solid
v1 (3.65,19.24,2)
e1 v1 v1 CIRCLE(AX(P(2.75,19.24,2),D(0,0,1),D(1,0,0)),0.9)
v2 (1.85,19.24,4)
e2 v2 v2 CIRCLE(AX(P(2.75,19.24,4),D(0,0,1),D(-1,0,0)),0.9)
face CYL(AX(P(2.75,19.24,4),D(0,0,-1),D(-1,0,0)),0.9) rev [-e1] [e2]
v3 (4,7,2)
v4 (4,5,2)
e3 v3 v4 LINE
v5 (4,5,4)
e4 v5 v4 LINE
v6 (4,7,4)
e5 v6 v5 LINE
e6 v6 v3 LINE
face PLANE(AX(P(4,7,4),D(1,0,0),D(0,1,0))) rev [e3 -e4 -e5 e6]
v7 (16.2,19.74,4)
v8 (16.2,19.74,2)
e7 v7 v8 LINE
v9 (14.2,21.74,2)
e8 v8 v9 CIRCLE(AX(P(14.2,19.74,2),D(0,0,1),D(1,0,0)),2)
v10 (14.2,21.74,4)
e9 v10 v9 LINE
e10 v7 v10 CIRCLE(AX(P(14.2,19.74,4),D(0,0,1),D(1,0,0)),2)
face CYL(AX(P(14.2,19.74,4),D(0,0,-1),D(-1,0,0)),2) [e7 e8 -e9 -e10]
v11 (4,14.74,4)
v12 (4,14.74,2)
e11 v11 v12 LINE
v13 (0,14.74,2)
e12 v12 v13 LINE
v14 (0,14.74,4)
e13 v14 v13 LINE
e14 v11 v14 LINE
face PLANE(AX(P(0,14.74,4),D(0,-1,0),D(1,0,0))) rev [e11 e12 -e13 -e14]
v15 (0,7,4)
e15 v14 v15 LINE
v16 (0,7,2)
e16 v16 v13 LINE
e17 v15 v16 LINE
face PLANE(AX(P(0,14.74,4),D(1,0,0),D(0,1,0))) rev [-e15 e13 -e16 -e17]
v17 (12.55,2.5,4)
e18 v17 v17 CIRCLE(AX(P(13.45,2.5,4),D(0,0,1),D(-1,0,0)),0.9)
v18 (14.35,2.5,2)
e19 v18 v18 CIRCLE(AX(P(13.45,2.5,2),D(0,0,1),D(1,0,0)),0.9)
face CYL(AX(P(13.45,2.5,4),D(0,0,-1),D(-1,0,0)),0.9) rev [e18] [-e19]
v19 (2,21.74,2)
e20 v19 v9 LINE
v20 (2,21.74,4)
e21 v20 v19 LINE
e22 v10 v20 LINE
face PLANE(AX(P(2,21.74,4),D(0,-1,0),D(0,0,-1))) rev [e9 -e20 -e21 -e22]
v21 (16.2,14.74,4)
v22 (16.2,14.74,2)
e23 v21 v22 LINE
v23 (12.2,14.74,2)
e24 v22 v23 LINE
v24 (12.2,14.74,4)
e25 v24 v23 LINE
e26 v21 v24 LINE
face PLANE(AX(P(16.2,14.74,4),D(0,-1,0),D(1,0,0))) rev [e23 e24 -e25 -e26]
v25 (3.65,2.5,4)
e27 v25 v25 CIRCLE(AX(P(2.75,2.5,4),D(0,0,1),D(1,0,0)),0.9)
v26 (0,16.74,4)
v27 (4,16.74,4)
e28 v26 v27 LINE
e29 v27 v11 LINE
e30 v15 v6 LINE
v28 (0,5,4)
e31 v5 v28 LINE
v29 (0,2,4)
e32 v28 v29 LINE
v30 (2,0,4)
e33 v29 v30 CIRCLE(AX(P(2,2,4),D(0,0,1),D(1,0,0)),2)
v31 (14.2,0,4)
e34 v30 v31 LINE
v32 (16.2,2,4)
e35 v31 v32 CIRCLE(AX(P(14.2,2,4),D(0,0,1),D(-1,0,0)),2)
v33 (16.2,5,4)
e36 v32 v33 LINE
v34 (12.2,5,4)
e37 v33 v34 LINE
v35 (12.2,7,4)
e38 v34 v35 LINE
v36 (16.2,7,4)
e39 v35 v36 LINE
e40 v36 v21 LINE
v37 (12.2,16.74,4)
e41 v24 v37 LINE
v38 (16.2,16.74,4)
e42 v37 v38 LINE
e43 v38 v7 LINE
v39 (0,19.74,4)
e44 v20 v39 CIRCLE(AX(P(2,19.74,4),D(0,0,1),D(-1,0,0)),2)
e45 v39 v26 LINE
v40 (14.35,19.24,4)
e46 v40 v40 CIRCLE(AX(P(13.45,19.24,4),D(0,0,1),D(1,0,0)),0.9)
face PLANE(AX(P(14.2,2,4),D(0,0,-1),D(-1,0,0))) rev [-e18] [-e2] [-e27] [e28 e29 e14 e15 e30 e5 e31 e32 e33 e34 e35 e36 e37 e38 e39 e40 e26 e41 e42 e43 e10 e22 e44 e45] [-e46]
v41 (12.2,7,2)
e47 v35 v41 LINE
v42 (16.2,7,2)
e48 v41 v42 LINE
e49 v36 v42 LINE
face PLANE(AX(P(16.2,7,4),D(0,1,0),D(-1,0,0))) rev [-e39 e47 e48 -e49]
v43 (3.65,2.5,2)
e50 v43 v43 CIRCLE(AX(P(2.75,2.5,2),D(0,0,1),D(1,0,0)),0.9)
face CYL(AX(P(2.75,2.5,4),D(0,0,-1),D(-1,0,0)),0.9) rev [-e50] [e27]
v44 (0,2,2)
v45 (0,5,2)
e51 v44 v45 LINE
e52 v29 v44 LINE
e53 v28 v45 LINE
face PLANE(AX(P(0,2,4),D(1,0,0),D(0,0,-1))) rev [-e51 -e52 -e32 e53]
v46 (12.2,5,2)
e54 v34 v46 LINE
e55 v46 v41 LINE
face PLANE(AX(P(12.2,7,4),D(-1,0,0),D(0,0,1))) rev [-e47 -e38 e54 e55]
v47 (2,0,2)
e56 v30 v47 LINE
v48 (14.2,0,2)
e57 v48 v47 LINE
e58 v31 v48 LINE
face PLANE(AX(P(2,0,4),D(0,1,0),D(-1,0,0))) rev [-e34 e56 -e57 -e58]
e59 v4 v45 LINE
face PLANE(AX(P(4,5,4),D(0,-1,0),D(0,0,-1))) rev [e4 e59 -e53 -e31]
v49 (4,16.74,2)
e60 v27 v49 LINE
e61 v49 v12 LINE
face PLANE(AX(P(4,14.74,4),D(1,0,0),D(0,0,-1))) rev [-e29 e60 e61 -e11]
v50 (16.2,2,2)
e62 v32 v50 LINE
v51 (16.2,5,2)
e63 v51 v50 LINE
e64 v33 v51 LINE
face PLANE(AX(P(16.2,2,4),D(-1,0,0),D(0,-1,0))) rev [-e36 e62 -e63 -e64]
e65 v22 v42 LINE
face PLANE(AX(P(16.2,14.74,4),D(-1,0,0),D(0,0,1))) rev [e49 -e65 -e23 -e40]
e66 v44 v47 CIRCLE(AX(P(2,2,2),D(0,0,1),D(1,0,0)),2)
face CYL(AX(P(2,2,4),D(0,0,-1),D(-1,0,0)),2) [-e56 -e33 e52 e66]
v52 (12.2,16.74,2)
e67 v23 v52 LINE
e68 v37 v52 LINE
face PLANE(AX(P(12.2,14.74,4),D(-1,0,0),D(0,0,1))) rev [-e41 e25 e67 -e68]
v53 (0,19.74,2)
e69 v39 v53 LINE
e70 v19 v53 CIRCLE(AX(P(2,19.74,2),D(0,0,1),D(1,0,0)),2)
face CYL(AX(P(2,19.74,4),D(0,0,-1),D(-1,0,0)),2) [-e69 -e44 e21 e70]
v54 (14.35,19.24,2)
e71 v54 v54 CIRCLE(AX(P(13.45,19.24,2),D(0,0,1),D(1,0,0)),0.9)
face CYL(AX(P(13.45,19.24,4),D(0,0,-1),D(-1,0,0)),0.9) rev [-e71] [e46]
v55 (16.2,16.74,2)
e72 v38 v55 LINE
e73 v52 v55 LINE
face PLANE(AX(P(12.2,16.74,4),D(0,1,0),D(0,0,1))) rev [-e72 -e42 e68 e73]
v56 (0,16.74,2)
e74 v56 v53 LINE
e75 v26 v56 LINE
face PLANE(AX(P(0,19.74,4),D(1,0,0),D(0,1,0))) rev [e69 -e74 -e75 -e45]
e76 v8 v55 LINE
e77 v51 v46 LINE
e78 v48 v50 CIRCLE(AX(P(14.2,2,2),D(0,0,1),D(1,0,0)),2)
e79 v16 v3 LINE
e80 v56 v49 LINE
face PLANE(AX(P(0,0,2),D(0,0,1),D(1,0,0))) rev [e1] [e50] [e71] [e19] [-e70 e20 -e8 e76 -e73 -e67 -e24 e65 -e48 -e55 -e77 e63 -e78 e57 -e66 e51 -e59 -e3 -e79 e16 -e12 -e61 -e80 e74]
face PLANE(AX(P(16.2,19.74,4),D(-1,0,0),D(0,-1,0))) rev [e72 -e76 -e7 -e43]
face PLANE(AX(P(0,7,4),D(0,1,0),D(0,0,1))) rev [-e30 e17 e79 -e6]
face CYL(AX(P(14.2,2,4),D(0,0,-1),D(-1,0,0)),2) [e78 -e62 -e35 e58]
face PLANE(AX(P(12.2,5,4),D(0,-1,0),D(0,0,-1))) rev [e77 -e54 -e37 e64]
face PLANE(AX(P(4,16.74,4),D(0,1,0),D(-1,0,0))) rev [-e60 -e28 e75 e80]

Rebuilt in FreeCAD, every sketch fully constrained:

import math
import FreeCAD as App
import Part
import Sketcher
from FreeCAD import Vector

doc = App.newDocument("Part")
body = doc.addObject("PartDesign::Body", "Body")

sketch1 = body.newObject("Sketcher::SketchObject", "Sketch")
sketch1.AttachmentSupport = (doc.getObject("XY_Plane"), [""])
sketch1.MapMode = "FlatFace"
sketch1.addGeometry(Part.LineSegment(Vector(0, 14.7, 0), Vector(0, 7, 0)), False)
sketch1.addGeometry(Part.LineSegment(Vector(0, 7, 0), Vector(4, 7, 0)), False)
sketch1.addGeometry(Part.LineSegment(Vector(4, 7, 0), Vector(4, 5, 0)), False)
sketch1.addGeometry(Part.LineSegment(Vector(4, 5, 0), Vector(0, 5, 0)), False)
sketch1.addGeometry(Part.LineSegment(Vector(0, 5, 0), Vector(0, 2, 0)), False)
sketch1.addGeometry(Part.ArcOfCircle(Part.Circle(Vector(2, 2, 0), Vector(0, 0, 1), 2), math.radians(-180), math.radians(-90)), False)
sketch1.addGeometry(Part.LineSegment(Vector(2, 0, 0), Vector(14.2, 0, 0)), False)
sketch1.addGeometry(Part.ArcOfCircle(Part.Circle(Vector(14.2, 2, 0), Vector(0, 0, 1), 2), math.radians(-90), math.radians(0)), False)
sketch1.addGeometry(Part.LineSegment(Vector(16.2, 2, 0), Vector(16.2, 5, 0)), False)
sketch1.addGeometry(Part.LineSegment(Vector(16.2, 5, 0), Vector(12.2, 5, 0)), False)
sketch1.addGeometry(Part.LineSegment(Vector(12.2, 5, 0), Vector(12.2, 7, 0)), False)
sketch1.addGeometry(Part.LineSegment(Vector(12.2, 7, 0), Vector(16.2, 7, 0)), False)
sketch1.addGeometry(Part.LineSegment(Vector(16.2, 7, 0), Vector(16.2, 14.7, 0)), False)
sketch1.addGeometry(Part.LineSegment(Vector(16.2, 14.7, 0), Vector(12.2, 14.7, 0)), False)
sketch1.addGeometry(Part.LineSegment(Vector(12.2, 14.7, 0), Vector(12.2, 16.7, 0)), False)
sketch1.addGeometry(Part.LineSegment(Vector(12.2, 16.7, 0), Vector(16.2, 16.7, 0)), False)
sketch1.addGeometry(Part.LineSegment(Vector(16.2, 16.7, 0), Vector(16.2, 19.7, 0)), False)
sketch1.addGeometry(Part.ArcOfCircle(Part.Circle(Vector(14.2, 19.7, 0), Vector(0, 0, 1), 2), math.radians(0), math.radians(90)), False)
sketch1.addGeometry(Part.LineSegment(Vector(14.2, 21.7, 0), Vector(2, 21.7, 0)), False)
sketch1.addGeometry(Part.ArcOfCircle(Part.Circle(Vector(2, 19.7, 0), Vector(0, 0, 1), 2), math.radians(90), math.radians(180)), False)
sketch1.addGeometry(Part.LineSegment(Vector(0, 19.7, 0), Vector(0, 16.7, 0)), False)
sketch1.addGeometry(Part.LineSegment(Vector(0, 16.7, 0), Vector(4, 16.7, 0)), False)
sketch1.addGeometry(Part.LineSegment(Vector(4, 16.7, 0), Vector(4, 14.7, 0)), False)
sketch1.addGeometry(Part.LineSegment(Vector(4, 14.7, 0), Vector(0, 14.7, 0)), False)
sketch1.addGeometry(Part.Circle(Vector(2.8, 2.5, 0), Vector(0, 0, 1), 0.9), False)
sketch1.addGeometry(Part.Circle(Vector(13.4, 2.5, 0), Vector(0, 0, 1), 0.9), False)
sketch1.addGeometry(Part.Circle(Vector(2.8, 19.2, 0), Vector(0, 0, 1), 0.9), False)
sketch1.addGeometry(Part.Circle(Vector(13.4, 19.2, 0), Vector(0, 0, 1), 0.9), False)
sketch1.addConstraint(Sketcher.Constraint("Coincident", 0, 2, 1, 1))
sketch1.addConstraint(Sketcher.Constraint("Coincident", 1, 2, 2, 1))
sketch1.addConstraint(Sketcher.Constraint("Coincident", 2, 2, 3, 1))
sketch1.addConstraint(Sketcher.Constraint("Coincident", 3, 2, 4, 1))
sketch1.addConstraint(Sketcher.Constraint("Tangent", 4, 2, 5, 1))
sketch1.addConstraint(Sketcher.Constraint("Tangent", 5, 2, 6, 1))
sketch1.addConstraint(Sketcher.Constraint("Tangent", 6, 2, 7, 1))
sketch1.addConstraint(Sketcher.Constraint("Tangent", 7, 2, 8, 1))
sketch1.addConstraint(Sketcher.Constraint("Coincident", 8, 2, 9, 1))
sketch1.addConstraint(Sketcher.Constraint("Coincident", 9, 2, 10, 1))
sketch1.addConstraint(Sketcher.Constraint("Coincident", 10, 2, 11, 1))
sketch1.addConstraint(Sketcher.Constraint("Coincident", 11, 2, 12, 1))
sketch1.addConstraint(Sketcher.Constraint("Coincident", 12, 2, 13, 1))
sketch1.addConstraint(Sketcher.Constraint("Coincident", 13, 2, 14, 1))
sketch1.addConstraint(Sketcher.Constraint("Coincident", 14, 2, 15, 1))
sketch1.addConstraint(Sketcher.Constraint("Coincident", 15, 2, 16, 1))
sketch1.addConstraint(Sketcher.Constraint("Tangent", 16, 2, 17, 1))
sketch1.addConstraint(Sketcher.Constraint("Tangent", 17, 2, 18, 1))
sketch1.addConstraint(Sketcher.Constraint("Tangent", 18, 2, 19, 1))
sketch1.addConstraint(Sketcher.Constraint("Tangent", 19, 2, 20, 1))
sketch1.addConstraint(Sketcher.Constraint("Coincident", 20, 2, 21, 1))
sketch1.addConstraint(Sketcher.Constraint("Coincident", 21, 2, 22, 1))
sketch1.addConstraint(Sketcher.Constraint("Coincident", 22, 2, 23, 1))
sketch1.addConstraint(Sketcher.Constraint("Coincident", 23, 2, 0, 1))
sketch1.addConstraint(Sketcher.Constraint("Vertical", 0))
sketch1.addConstraint(Sketcher.Constraint("Horizontal", 1))
sketch1.addConstraint(Sketcher.Constraint("Vertical", 2))
sketch1.addConstraint(Sketcher.Constraint("Horizontal", 3))
sketch1.addConstraint(Sketcher.Constraint("Vertical", 4))
sketch1.addConstraint(Sketcher.Constraint("Horizontal", 6))
sketch1.addConstraint(Sketcher.Constraint("Vertical", 8))
sketch1.addConstraint(Sketcher.Constraint("Horizontal", 9))
sketch1.addConstraint(Sketcher.Constraint("Vertical", 10))
sketch1.addConstraint(Sketcher.Constraint("Horizontal", 11))
sketch1.addConstraint(Sketcher.Constraint("Vertical", 12))
sketch1.addConstraint(Sketcher.Constraint("Horizontal", 13))
sketch1.addConstraint(Sketcher.Constraint("Vertical", 14))
sketch1.addConstraint(Sketcher.Constraint("Horizontal", 15))
sketch1.addConstraint(Sketcher.Constraint("Vertical", 16))
sketch1.addConstraint(Sketcher.Constraint("Horizontal", 18))
sketch1.addConstraint(Sketcher.Constraint("Vertical", 20))
sketch1.addConstraint(Sketcher.Constraint("Horizontal", 21))
sketch1.addConstraint(Sketcher.Constraint("Vertical", 22))
sketch1.addConstraint(Sketcher.Constraint("Horizontal", 23))
sketch1.addConstraint(Sketcher.Constraint("Equal", 5, 7))
sketch1.addConstraint(Sketcher.Constraint("Equal", 7, 17))
sketch1.addConstraint(Sketcher.Constraint("Equal", 17, 19))
sketch1.addConstraint(Sketcher.Constraint("Equal", 24, 25))
sketch1.addConstraint(Sketcher.Constraint("Equal", 25, 26))
sketch1.addConstraint(Sketcher.Constraint("Equal", 26, 27))
sketch1.addConstraint(Sketcher.Constraint("PointOnObject", 0, 2, -2))
sketch1.addConstraint(Sketcher.Constraint("PointOnObject", 3, 2, -2))
sketch1.addConstraint(Sketcher.Constraint("PointOnObject", 5, 2, -1))
sketch1.addConstraint(Sketcher.Constraint("PointOnObject", 19, 2, -2))
sketch1.addConstraint(Sketcher.Constraint("Horizontal", 24, 3, 25, 3))
sketch1.addConstraint(Sketcher.Constraint("Horizontal", 26, 3, 27, 3))
sketch1.addConstraint(Sketcher.Constraint("Horizontal", 3, 2, 8, 2))
sketch1.addConstraint(Sketcher.Constraint("Horizontal", 1, 2, 10, 2))
sketch1.addConstraint(Sketcher.Constraint("Horizontal", 15, 2, 20, 2))
sketch1.addConstraint(Sketcher.Constraint("Horizontal", 13, 2, 22, 2))
sketch1.addConstraint(Sketcher.Constraint("Vertical", 7, 3, 17, 3))
sketch1.addConstraint(Sketcher.Constraint("Vertical", 24, 3, 26, 3))
sketch1.addConstraint(Sketcher.Constraint("Vertical", 25, 3, 27, 3))
sketch1.addConstraint(Sketcher.Constraint("Vertical", 8, 2, 11, 2))
sketch1.addConstraint(Sketcher.Constraint("Vertical", 10, 2, 13, 2))
sketch1.addConstraint(Sketcher.Constraint("Vertical", 2, 2, 21, 2))
sketch1.addConstraint(Sketcher.Constraint("Equal", 3, 9))
sketch1.addConstraint(Sketcher.Constraint("Equal", 10, 14))
sketch1.addConstraint(Sketcher.Constraint("Equal", 8, 16))
sketch1.addConstraint(Sketcher.Constraint("Radius", 5, 2.0))
sketch1.addConstraint(Sketcher.Constraint("Diameter", 24, 1.8))
sketch1.addConstraint(Sketcher.Constraint("DistanceX", 1, 1, 1, 2, 4.0))
sketch1.addConstraint(Sketcher.Constraint("DistanceY", 2, 2, 2, 1, 2.0))
sketch1.addConstraint(Sketcher.Constraint("DistanceY", 4, 2, 4, 1, 3.0))
sketch1.addConstraint(Sketcher.Constraint("DistanceX", 6, 1, 6, 2, 12.2))
sketch1.addConstraint(Sketcher.Constraint("DistanceY", 0, 2, 0, 1, 7.74))
sketch1.addConstraint(Sketcher.Constraint("DistanceY", -1, 1, 24, 3, 2.5))
sketch1.addConstraint(Sketcher.Constraint("DistanceX", 24, 3, 25, 3, 10.7))
sketch1.addConstraint(Sketcher.Constraint("DistanceY", 26, 3, 19, 3, 0.5))
sketch1.addConstraint(Sketcher.Constraint("DistanceX", -1, 1, 24, 3, 2.75))
pad1 = body.newObject("PartDesign::Pad", "Pad")
pad1.Profile = sketch1
pad1.Length = 4

sketch2 = body.newObject("Sketcher::SketchObject", "Sketch001")
sketch2.AttachmentSupport = (doc.getObject("XY_Plane"), [""])
sketch2.MapMode = "FlatFace"
sketch2.addGeometry(Part.LineSegment(Vector(16, 22, 0), Vector(16, 0, 0)), False)
sketch2.addGeometry(Part.LineSegment(Vector(16, 0, 0), Vector(0, 0, 0)), False)
sketch2.addGeometry(Part.LineSegment(Vector(0, 0, 0), Vector(0, 22, 0)), False)
sketch2.addGeometry(Part.LineSegment(Vector(0, 22, 0), Vector(16, 22, 0)), False)
sketch2.addConstraint(Sketcher.Constraint("Coincident", 0, 2, 1, 1))
sketch2.addConstraint(Sketcher.Constraint("Coincident", 1, 2, 2, 1))
sketch2.addConstraint(Sketcher.Constraint("Coincident", 2, 2, 3, 1))
sketch2.addConstraint(Sketcher.Constraint("Coincident", 3, 2, 0, 1))
sketch2.addConstraint(Sketcher.Constraint("Vertical", 0))
sketch2.addConstraint(Sketcher.Constraint("Horizontal", 1))
sketch2.addConstraint(Sketcher.Constraint("Vertical", 2))
sketch2.addConstraint(Sketcher.Constraint("Horizontal", 3))
sketch2.addConstraint(Sketcher.Constraint("Coincident", 1, 2, -1, 1))
sketch2.addConstraint(Sketcher.Constraint("DistanceX", 1, 2, 1, 1, 16.2))
sketch2.addConstraint(Sketcher.Constraint("DistanceY", 0, 2, 0, 1, 21.74))
pocket1 = body.newObject("PartDesign::Pocket", "Pocket")
pocket1.Profile = sketch2
pocket1.Length = 2
pocket1.Reversed = True

doc.recompute()
